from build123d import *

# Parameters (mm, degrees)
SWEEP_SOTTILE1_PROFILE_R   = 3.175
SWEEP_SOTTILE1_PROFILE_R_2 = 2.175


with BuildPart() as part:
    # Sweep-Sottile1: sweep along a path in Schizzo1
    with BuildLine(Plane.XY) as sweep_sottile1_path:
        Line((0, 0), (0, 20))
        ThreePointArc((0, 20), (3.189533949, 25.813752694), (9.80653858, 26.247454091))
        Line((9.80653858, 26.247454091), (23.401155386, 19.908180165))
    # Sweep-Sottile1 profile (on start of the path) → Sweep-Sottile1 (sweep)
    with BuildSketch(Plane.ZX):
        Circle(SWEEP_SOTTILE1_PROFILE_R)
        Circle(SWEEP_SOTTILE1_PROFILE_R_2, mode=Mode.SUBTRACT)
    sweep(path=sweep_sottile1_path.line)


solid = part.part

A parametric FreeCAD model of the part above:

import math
import FreeCAD as App
import Part
import Sketcher
from FreeCAD import Vector
Q = App.Units.Quantity

doc = App.newDocument("Part")
body = doc.addObject("PartDesign::Body", "Body")

# Sketch on XZ plane
sketch1 = body.newObject("Sketcher::SketchObject", "Sketch")
sketch1.AttachmentSupport = (doc.getObject("XZ_Plane"), [""])
sketch1.MapMode = "FlatFace"
sketch1.addGeometry([
    Part.Circle(Vector(0, 0, 0), Vector(0, 0, 1), 3.2),
    Part.Circle(Vector(0, 0, 0), Vector(0, 0, 1), 2.2),
], False)
sketch1.addConstraint([
    Sketcher.Constraint("Coincident", 0, 3, -1, 1),
    Sketcher.Constraint("Coincident", 1, 3, -1, 1),
    Sketcher.Constraint("Diameter", 0, 6.35),
    Sketcher.Constraint("Diameter", 1, 4.35),
])

# Sketch on XY plane
sketch2 = body.newObject("Sketcher::SketchObject", "Sketch001")
sketch2.AttachmentSupport = (doc.getObject("XY_Plane"), [""])
sketch2.MapMode = "FlatFace"
sketch2.addGeometry([
    Part.LineSegment(Vector(0, 0, 0), Vector(0, 20, 0)),
    Part.ArcOfCircle(Part.Circle(Vector(7, 20, 0), Vector(0, 0, 1), 7), math.radians(65), math.radians(180)),
    Part.LineSegment(Vector(10, 26, 0), Vector(23, 20, 0)),
], False)
sketch2.addConstraint([
    Sketcher.Constraint("Tangent", 0, 2, 1, 2),
    Sketcher.Constraint("Tangent", 1, 1, 2, 1),
    Sketcher.Constraint("Vertical", 0),
    Sketcher.Constraint("Coincident", 0, 1, -1, 1),
    Sketcher.Constraint("DistanceY", 0, 1, 0, 2, 20.0),
    Sketcher.Constraint("Angle", 2, Q("-25 deg")),
    Sketcher.Constraint("Distance", 2, 15.0),
    Sketcher.Constraint("Radius", 1, 6.893303),
])
doc.recompute()

additivepipe = body.newObject("PartDesign::AdditivePipe", "AdditivePipe")
additivepipe.Profile = sketch1
additivepipe.Spine = (sketch2, ["Edge1", "Edge2", "Edge3"])

doc.recompute()
